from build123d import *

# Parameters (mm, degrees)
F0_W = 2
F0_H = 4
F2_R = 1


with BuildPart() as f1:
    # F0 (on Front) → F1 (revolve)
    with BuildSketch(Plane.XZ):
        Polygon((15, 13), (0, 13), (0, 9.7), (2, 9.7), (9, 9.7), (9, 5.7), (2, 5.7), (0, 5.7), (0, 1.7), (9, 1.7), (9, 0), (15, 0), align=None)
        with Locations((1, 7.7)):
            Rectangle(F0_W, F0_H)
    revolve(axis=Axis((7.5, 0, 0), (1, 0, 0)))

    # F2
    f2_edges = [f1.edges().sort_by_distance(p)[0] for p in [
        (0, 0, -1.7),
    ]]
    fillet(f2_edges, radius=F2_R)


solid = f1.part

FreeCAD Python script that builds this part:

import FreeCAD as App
import Part
import Sketcher
from FreeCAD import Vector
Q = App.Units.Quantity


def edges_at(feature, points):
    """Names of the edges that pass closest to the given points."""
    edges = feature.Shape.Edges
    near = lambda p: min(range(len(edges)), key=lambda i: edges[i].distToShape(Part.Vertex(*p))[0])
    return sorted({f"Edge{near(p) + 1}" for p in points})

doc = App.newDocument("Part")
body = doc.addObject("PartDesign::Body", "Body")

# Sketch on XZ plane
sketch1 = body.newObject("Sketcher::SketchObject", "Sketch")
sketch1.AttachmentSupport = (doc.getObject("XZ_Plane"), [""])
sketch1.MapMode = "FlatFace"
sketch1.addGeometry([
    Part.LineSegment(Vector(15, 13, 0), Vector(0, 13, 0)),  # 0
    Part.LineSegment(Vector(0, 13, 0), Vector(0, 1.7, 0)),  # 1
    Part.LineSegment(Vector(0, 1.7, 0), Vector(9, 1.7, 0)),  # 2
    Part.LineSegment(Vector(9, 1.7, 0), Vector(9, 0, 0)),  # 3
    Part.LineSegment(Vector(9, 0, 0), Vector(15, 0, 0)),  # 4
    Part.LineSegment(Vector(15, 0, 0), Vector(15, 13, 0)),  # 5
    Part.LineSegment(Vector(2, 9.7, 0), Vector(9, 9.7, 0)),  # 6
    Part.LineSegment(Vector(9, 9.7, 0), Vector(9, 5.7, 0)),  # 7
    Part.LineSegment(Vector(9, 5.7, 0), Vector(2, 5.7, 0)),  # 8
    Part.LineSegment(Vector(2, 5.7, 0), Vector(2, 9.7, 0)),  # 9
], False)
sketch1.addConstraint([
    Sketcher.Constraint("Coincident", 0, 2, 1, 1),
    Sketcher.Constraint("Coincident", 1, 2, 2, 1),
    Sketcher.Constraint("Coincident", 2, 2, 3, 1),
    Sketcher.Constraint("Coincident", 3, 2, 4, 1),
    Sketcher.Constraint("Coincident", 4, 2, 5, 1),
    Sketcher.Constraint("Coincident", 5, 2, 0, 1),
    Sketcher.Constraint("Coincident", 6, 2, 7, 1),
    Sketcher.Constraint("Coincident", 7, 2, 8, 1),
    Sketcher.Constraint("Coincident", 8, 2, 9, 1),
    Sketcher.Constraint("Coincident", 9, 2, 6, 1),
    Sketcher.Constraint("Horizontal", 0),
    Sketcher.Constraint("Vertical", 1),
    Sketcher.Constraint("Horizontal", 2),
    Sketcher.Constraint("Vertical", 3),
    Sketcher.Constraint("Horizontal", 4),
    Sketcher.Constraint("Vertical", 5),
    Sketcher.Constraint("Horizontal", 6),
    Sketcher.Constraint("Vertical", 7),
    Sketcher.Constraint("Horizontal", 8),
    Sketcher.Constraint("Vertical", 9),
    Sketcher.Constraint("PointOnObject", 0, 2, -2),
    Sketcher.Constraint("PointOnObject", 3, 2, -1),
    Sketcher.Constraint("Vertical", 3, 2, 6, 2),
    Sketcher.Constraint("DistanceX", 0, 2, 0, 1, Q("15 mm")),
    Sketcher.Constraint("DistanceX", 2, 1, 2, 2, Q("9 mm")),
    Sketcher.Constraint("DistanceX", 6, 1, 6, 2, Q("7 mm")),
    Sketcher.Constraint("DistanceY", 5, 1, 5, 2, Q("13 mm")),
    Sketcher.Constraint("DistanceY", 7, 2, 7, 1, Q("4 mm")),
    Sketcher.Constraint("DistanceY", 1, 2, 1, 1, Q("11.3 mm")),
    Sketcher.Constraint("DistanceY", 2, 2, 6, 2, Q("8 mm")),
])
revolution = body.newObject("PartDesign::Revolution", "Revolution")
revolution.Profile = sketch1
revolution.ReferenceAxis = (sketch1, ["H_Axis"])
revolution.Angle = 360
doc.recompute()

fillet = body.newObject("PartDesign::Fillet", "Fillet")
fillet.Base = (revolution, edges_at(revolution, [(0, 0, -1.7)]))
fillet.Radius = 1

doc.recompute()
